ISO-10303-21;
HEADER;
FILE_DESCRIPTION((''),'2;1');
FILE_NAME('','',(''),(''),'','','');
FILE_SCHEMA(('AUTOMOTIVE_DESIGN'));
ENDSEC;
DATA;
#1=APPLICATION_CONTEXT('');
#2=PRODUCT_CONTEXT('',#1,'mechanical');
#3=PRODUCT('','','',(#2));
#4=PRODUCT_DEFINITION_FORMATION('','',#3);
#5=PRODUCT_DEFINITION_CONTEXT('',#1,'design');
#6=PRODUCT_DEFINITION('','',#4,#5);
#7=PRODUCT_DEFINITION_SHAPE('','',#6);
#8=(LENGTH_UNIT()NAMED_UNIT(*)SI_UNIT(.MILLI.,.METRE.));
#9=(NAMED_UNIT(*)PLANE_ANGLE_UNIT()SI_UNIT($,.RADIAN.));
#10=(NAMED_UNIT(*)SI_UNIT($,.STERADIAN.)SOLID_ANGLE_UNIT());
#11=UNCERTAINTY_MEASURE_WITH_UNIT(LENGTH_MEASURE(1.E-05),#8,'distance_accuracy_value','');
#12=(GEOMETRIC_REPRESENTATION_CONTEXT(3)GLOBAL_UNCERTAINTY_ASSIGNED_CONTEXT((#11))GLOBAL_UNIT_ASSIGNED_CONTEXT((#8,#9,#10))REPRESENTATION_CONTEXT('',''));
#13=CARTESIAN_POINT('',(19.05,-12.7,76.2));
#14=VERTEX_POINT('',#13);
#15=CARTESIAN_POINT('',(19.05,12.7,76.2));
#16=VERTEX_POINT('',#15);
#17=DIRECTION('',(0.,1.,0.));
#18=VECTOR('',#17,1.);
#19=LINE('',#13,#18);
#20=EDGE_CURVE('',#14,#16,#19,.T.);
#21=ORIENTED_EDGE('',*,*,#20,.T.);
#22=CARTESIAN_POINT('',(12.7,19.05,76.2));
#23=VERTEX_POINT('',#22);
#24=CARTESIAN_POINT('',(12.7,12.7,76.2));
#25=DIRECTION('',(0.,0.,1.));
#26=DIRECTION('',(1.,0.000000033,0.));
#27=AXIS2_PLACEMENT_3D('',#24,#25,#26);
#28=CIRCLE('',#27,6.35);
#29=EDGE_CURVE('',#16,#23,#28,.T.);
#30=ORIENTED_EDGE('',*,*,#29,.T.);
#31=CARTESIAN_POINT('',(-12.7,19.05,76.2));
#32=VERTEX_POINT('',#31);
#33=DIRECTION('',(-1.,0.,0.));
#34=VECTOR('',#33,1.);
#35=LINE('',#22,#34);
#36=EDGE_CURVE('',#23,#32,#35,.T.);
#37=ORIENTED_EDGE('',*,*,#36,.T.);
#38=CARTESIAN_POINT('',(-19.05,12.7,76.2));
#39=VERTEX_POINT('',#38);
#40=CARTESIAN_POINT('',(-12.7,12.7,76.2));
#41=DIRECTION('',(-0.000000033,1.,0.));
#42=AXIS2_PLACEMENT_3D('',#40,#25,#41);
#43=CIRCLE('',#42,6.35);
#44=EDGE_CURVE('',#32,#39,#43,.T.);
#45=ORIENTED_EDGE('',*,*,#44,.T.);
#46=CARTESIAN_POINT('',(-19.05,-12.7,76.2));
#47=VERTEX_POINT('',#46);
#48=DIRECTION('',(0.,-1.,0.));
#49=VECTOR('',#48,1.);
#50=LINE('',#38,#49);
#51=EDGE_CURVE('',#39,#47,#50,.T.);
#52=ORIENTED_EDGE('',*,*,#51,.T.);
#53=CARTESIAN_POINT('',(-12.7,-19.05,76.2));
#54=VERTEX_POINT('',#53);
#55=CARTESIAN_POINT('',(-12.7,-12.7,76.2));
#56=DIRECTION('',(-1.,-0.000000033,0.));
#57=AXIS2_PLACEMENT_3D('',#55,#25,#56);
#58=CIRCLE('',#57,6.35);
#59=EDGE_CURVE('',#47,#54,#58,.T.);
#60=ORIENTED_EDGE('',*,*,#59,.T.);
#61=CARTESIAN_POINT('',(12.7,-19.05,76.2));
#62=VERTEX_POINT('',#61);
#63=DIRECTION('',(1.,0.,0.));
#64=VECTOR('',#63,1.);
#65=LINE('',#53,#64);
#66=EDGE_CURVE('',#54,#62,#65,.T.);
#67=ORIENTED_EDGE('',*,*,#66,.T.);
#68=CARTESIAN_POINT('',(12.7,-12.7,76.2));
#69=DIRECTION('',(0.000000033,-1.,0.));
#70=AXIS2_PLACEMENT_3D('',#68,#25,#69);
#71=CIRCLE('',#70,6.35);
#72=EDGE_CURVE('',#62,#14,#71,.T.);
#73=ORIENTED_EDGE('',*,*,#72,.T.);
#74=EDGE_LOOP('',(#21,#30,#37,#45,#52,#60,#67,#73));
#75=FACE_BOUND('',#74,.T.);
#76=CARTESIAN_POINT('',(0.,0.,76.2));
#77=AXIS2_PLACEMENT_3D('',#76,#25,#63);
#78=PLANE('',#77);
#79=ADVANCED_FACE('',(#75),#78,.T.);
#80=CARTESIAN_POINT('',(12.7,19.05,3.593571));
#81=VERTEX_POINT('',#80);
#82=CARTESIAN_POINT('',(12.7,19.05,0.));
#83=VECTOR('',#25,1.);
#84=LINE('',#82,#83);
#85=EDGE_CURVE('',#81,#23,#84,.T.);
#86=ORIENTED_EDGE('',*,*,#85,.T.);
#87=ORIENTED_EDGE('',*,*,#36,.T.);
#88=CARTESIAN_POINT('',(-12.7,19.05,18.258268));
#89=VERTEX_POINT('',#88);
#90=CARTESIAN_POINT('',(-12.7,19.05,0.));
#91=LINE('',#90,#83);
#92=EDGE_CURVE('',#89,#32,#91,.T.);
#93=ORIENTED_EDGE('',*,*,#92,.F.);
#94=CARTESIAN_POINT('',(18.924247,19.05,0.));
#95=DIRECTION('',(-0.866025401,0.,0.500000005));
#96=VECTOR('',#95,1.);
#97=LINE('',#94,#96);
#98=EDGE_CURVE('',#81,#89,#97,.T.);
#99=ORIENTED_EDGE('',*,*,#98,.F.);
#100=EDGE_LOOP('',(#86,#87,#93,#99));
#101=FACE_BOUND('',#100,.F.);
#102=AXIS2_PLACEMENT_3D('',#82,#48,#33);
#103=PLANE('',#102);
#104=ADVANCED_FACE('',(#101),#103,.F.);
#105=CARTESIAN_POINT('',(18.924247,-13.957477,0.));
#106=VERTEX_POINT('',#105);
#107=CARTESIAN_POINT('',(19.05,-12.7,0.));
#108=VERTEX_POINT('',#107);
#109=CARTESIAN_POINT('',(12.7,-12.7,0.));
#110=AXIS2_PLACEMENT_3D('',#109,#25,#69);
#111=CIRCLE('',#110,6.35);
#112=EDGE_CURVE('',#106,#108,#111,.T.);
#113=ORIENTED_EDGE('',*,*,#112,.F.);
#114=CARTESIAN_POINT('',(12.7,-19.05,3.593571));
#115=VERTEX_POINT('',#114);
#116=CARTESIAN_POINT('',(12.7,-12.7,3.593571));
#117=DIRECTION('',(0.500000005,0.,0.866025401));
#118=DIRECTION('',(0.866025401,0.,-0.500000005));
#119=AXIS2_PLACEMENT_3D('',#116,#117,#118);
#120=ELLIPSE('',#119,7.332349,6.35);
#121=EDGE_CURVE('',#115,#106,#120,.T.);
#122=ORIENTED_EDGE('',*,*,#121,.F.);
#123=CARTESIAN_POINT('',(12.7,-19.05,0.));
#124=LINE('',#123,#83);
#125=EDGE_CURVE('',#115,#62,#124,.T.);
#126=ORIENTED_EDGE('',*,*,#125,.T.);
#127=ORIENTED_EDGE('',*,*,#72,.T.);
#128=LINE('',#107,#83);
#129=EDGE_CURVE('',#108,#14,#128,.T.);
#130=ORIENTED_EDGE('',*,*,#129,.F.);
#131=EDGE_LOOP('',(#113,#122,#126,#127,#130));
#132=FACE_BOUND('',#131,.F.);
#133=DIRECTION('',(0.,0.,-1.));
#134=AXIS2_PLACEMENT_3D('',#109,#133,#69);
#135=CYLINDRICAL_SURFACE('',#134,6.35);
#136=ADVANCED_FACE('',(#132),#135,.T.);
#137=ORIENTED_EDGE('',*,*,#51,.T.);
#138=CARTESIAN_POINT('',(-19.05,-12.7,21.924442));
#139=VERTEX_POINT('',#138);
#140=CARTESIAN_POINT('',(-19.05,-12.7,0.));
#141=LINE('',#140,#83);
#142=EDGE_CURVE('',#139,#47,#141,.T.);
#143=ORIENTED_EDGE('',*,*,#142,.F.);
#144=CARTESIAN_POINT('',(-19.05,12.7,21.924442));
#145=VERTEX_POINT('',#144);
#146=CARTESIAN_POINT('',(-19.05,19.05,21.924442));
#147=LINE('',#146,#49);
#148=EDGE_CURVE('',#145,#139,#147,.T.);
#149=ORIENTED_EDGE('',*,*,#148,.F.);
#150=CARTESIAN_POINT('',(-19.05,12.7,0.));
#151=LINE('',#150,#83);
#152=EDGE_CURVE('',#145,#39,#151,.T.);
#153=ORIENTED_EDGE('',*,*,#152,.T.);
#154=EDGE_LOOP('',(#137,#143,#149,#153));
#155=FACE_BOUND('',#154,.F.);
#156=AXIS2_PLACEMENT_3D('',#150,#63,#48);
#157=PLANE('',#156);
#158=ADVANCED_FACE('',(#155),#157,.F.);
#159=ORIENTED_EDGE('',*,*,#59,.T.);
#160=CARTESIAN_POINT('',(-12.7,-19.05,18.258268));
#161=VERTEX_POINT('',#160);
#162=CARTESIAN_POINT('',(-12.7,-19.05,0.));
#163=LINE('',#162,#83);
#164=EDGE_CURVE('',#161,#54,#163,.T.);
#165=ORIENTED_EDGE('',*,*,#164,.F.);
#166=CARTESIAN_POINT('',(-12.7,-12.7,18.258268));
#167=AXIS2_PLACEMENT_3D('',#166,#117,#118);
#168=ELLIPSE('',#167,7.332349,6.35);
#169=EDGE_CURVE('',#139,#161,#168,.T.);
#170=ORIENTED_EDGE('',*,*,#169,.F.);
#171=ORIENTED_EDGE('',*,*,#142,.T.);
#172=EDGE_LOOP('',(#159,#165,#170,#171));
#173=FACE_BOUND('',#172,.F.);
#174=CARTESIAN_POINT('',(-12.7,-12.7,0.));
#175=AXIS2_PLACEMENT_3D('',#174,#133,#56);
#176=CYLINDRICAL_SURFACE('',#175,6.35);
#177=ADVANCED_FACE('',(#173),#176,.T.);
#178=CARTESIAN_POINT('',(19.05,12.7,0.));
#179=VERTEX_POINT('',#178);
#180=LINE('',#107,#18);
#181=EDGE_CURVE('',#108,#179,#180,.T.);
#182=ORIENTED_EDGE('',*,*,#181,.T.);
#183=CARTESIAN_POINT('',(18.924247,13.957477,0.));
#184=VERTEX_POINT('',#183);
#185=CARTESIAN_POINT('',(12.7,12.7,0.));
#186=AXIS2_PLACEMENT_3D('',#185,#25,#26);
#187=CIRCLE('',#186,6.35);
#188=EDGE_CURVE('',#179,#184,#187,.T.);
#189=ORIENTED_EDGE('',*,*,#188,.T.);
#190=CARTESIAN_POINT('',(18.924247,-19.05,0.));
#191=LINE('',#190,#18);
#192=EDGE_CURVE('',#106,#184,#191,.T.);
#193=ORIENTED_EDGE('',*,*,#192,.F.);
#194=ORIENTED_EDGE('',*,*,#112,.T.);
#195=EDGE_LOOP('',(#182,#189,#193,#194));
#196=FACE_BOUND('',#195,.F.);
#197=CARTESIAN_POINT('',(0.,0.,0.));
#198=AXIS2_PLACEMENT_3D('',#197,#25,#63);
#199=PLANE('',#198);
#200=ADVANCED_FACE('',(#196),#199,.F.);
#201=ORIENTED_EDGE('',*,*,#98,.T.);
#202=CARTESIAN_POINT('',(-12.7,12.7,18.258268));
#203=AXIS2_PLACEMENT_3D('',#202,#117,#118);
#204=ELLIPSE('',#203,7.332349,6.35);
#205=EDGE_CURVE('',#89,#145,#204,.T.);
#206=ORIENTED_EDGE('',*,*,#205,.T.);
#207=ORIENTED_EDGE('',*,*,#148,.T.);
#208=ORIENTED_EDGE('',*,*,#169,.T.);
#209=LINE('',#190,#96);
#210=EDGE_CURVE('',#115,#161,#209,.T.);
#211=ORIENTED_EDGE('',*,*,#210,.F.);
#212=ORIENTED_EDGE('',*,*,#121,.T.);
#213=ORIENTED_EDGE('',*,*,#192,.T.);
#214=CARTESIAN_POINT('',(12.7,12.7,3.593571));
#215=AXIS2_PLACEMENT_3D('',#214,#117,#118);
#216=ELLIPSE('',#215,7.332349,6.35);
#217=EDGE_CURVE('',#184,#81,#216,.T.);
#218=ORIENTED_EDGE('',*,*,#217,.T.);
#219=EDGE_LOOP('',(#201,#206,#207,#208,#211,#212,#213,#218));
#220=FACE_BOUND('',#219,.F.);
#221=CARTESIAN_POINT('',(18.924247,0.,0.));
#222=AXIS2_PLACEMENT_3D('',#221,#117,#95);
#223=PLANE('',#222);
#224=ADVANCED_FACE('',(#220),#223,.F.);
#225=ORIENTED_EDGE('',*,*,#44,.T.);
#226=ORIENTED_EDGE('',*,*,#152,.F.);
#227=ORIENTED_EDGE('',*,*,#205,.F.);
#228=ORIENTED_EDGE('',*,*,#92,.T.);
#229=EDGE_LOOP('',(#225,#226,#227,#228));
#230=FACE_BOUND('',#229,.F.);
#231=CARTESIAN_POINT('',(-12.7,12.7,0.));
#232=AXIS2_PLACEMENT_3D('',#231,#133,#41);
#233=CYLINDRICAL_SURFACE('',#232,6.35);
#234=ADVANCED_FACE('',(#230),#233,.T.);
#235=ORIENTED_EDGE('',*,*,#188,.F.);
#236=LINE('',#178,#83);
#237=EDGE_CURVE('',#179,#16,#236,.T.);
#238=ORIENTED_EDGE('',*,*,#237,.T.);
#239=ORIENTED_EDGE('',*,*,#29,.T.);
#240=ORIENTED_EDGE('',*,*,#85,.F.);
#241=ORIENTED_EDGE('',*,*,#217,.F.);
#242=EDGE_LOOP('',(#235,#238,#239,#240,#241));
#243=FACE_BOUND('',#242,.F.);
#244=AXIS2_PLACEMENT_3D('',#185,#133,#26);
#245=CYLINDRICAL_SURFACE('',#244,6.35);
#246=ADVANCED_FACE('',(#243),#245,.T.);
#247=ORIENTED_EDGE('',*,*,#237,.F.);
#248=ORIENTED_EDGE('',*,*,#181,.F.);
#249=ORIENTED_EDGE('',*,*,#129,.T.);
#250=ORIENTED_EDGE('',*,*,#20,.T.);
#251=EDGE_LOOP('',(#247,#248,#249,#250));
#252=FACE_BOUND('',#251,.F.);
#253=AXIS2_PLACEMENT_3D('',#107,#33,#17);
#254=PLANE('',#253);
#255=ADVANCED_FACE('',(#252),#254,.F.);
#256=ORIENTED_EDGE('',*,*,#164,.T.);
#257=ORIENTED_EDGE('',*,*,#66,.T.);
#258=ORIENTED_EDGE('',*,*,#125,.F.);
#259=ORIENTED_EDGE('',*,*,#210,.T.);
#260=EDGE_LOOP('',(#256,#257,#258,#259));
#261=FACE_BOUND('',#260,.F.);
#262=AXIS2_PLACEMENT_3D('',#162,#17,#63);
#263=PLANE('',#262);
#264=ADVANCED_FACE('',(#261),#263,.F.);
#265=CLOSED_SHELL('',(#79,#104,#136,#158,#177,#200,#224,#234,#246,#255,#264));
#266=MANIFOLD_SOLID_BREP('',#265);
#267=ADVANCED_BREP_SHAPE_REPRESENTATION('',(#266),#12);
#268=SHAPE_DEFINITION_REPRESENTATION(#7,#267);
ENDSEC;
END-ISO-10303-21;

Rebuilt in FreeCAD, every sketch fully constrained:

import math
import FreeCAD as App
import Part
import Sketcher

V = App.Vector
Q = App.Units.Quantity


def add_polygon(sketch, points):
    """Adds a closed chain of lines whose ends are joined by coincident constraints."""
    first, n = sketch.GeometryCount, len(points)
    for a, b in zip(points, points[1:] + points[:1]):
        sketch.addGeometry(Part.LineSegment(App.Vector(*a, 0), App.Vector(*b, 0)), False)
    for i in range(n):
        sketch.addConstraint(Sketcher.Constraint("Coincident", first + i, 2, first + (i + 1) % n, 1))

doc = App.newDocument("Part")
params = doc.addObject("Spreadsheet::Sheet", "Params")
for row, (alias, value) in enumerate([
    ("sketch1_width", "1 in"),
    ("sketch1_radius", "0.25 in"),
    ("pad1_length", "3 in"),
    ("pocket1_length", "1.5 in"),
], start=1):
    params.set(f"A{row}", alias)
    params.set(f"B{row}", "=" + value)
    params.setAlias(f"B{row}", alias)

body = doc.addObject("PartDesign::Body", "Body")

# Sketch on XY plane
sketch1 = body.newObject("Sketcher::SketchObject", "Sketch")
sketch1.AttachmentSupport = (doc.getObject("XY_Plane"), [""])
sketch1.MapMode = "FlatFace"
sketch1.addGeometry(Part.ArcOfCircle(Part.Circle(V(13, 13, 0), V(0, 0, 1), 6), math.radians(0), math.radians(90)), False)
sketch1.addGeometry(Part.LineSegment(V(13, 19, 0), V(-13, 19, 0)), False)
sketch1.addGeometry(Part.ArcOfCircle(Part.Circle(V(-13, 13, 0), V(0, 0, 1), 6), math.radians(90), math.radians(180)), False)
sketch1.addGeometry(Part.LineSegment(V(-19, 13, 0), V(-19, -13, 0)), False)
sketch1.addGeometry(Part.ArcOfCircle(Part.Circle(V(-13, -13, 0), V(0, 0, 1), 6), math.radians(-180), math.radians(-90)), False)
sketch1.addGeometry(Part.LineSegment(V(-13, -19, 0), V(13, -19, 0)), False)
sketch1.addGeometry(Part.ArcOfCircle(Part.Circle(V(13, -13, 0), V(0, 0, 1), 6), math.radians(-90), math.radians(0)), False)
sketch1.addGeometry(Part.LineSegment(V(19, -13, 0), V(19, 13, 0)), False)
sketch1.addConstraint(Sketcher.Constraint("Tangent", 0, 2, 1, 1))
sketch1.addConstraint(Sketcher.Constraint("Tangent", 1, 2, 2, 1))
sketch1.addConstraint(Sketcher.Constraint("Tangent", 2, 2, 3, 1))
sketch1.addConstraint(Sketcher.Constraint("Tangent", 3, 2, 4, 1))
sketch1.addConstraint(Sketcher.Constraint("Tangent", 4, 2, 5, 1))
sketch1.addConstraint(Sketcher.Constraint("Tangent", 5, 2, 6, 1))
sketch1.addConstraint(Sketcher.Constraint("Tangent", 6, 2, 7, 1))
sketch1.addConstraint(Sketcher.Constraint("Tangent", 7, 2, 0, 1))
sketch1.addConstraint(Sketcher.Constraint("Horizontal", 1))
sketch1.addConstraint(Sketcher.Constraint("Vertical", 3))
sketch1.addConstraint(Sketcher.Constraint("Horizontal", 5))
sketch1.addConstraint(Sketcher.Constraint("Vertical", 7))
sketch1.addConstraint(Sketcher.Constraint("Equal", 0, 2))
sketch1.addConstraint(Sketcher.Constraint("Equal", 2, 4))
sketch1.addConstraint(Sketcher.Constraint("Equal", 4, 6))
sketch1.addConstraint(Sketcher.Constraint("Symmetric", 0, 3, 4, 3, -1, 1))
sketch1.addConstraint(Sketcher.Constraint("Equal", 5, 3))
sketch1.addConstraint(Sketcher.Constraint("DistanceX", 1, 2, 1, 1, Q("1 in")))
sketch1.addConstraint(Sketcher.Constraint("Radius", 0, Q("0.25 in")))
sketch1.setExpression("Constraints[17]", "Params.sketch1_width")
sketch1.setExpression("Constraints[18]", "Params.sketch1_radius")
pad1 = body.newObject("PartDesign::Pad", "Pad")
pad1.Profile = sketch1
pad1.setExpression("Length", "Params.pad1_length")

# Sketch on XZ plane
sketch2 = body.newObject("Sketcher::SketchObject", "Sketch001")
sketch2.AttachmentSupport = (doc.getObject("XZ_Plane"), [""])
sketch2.MapMode = "FlatFace"
add_polygon(sketch2, [(19, 0), (-19, 22), (-19, 0)])  # lines 0-2
sketch2.addConstraint(Sketcher.Constraint("Vertical", 1))
sketch2.addConstraint(Sketcher.Constraint("Horizontal", 2))
sketch2.addConstraint(Sketcher.Constraint("PointOnObject", 1, 2, -1))
sketch2.addConstraint(Sketcher.Constraint("Angle", 0, Q("150 deg")))
sketch2.addConstraint(Sketcher.Constraint("DistanceX", 0, 2, -1, 1, Q("0.75 in")))
sketch2.addConstraint(Sketcher.Constraint("DistanceY", 1, 2, 1, 1, 21.924442))
pocket1 = body.newObject("PartDesign::Pocket", "Pocket")
pocket1.Profile = sketch2
pocket1.setExpression("Length", "Params.pocket1_length")
pocket1.Midplane = True

doc.recompute()
